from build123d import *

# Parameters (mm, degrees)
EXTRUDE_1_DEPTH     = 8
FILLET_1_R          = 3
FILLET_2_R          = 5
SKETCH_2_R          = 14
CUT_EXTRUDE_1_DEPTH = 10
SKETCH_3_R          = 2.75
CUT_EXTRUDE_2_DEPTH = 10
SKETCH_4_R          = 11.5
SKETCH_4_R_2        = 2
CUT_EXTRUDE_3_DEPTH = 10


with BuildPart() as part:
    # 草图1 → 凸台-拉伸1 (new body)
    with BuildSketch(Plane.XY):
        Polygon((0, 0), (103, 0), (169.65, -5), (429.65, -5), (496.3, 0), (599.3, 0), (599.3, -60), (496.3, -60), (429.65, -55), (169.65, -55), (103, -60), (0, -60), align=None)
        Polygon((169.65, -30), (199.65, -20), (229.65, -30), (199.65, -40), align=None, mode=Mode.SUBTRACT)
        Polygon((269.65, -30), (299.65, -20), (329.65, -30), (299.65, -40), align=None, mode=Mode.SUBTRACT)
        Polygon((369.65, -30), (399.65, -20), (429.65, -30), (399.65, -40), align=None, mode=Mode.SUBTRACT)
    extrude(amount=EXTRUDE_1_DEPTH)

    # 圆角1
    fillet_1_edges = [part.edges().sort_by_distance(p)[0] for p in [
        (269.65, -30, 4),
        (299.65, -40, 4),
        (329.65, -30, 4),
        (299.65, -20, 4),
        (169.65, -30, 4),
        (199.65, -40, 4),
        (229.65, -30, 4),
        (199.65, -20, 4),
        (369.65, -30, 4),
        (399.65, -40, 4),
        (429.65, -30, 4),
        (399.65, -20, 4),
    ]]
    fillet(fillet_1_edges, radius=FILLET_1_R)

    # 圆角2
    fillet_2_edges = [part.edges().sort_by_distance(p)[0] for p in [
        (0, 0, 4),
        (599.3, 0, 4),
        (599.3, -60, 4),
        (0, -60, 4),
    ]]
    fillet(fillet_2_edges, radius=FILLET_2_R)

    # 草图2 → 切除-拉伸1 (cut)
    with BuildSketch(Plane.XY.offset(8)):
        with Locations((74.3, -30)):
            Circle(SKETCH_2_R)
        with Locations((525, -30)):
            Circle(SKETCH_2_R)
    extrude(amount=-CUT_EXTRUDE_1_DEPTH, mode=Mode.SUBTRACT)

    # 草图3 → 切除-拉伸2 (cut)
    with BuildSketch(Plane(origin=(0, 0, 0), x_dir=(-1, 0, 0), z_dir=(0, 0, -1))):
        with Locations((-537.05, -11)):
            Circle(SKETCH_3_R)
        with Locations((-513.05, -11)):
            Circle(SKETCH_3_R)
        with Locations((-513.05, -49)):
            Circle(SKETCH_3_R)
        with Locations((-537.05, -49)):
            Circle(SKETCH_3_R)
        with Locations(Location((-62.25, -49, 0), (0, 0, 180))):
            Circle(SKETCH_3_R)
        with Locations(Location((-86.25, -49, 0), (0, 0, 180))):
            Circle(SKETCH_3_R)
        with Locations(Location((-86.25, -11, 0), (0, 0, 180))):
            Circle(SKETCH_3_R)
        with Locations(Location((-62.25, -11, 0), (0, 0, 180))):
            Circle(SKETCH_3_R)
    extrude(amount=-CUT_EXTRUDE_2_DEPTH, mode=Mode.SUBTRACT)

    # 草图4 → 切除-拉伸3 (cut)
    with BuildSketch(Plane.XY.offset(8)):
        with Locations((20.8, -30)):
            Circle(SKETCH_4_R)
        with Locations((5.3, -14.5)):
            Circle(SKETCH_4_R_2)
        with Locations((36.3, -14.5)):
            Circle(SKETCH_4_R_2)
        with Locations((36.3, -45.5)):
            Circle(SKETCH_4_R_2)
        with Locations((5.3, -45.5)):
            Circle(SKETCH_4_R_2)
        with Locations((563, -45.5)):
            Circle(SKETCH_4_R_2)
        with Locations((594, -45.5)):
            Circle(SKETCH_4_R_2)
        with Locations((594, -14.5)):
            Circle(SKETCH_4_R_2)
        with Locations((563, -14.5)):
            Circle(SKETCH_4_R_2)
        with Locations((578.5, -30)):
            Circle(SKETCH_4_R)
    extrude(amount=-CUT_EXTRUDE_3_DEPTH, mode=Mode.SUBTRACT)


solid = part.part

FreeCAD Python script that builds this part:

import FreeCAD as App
import Part
import Sketcher

V = App.Vector
Q = App.Units.Quantity


def edges_at(feature, points):
    """Names of the edges that pass closest to the given points."""
    edges = feature.Shape.Edges
    near = lambda p: min(range(len(edges)), key=lambda i: edges[i].distToShape(Part.Vertex(*p))[0])
    return sorted({f"Edge{near(p) + 1}" for p in points})


def add_polygon(sketch, points):
    """Adds a closed chain of lines whose ends are joined by coincident constraints."""
    first, n = sketch.GeometryCount, len(points)
    for a, b in zip(points, points[1:] + points[:1]):
        sketch.addGeometry(Part.LineSegment(App.Vector(*a, 0), App.Vector(*b, 0)), False)
    for i in range(n):
        sketch.addConstraint(Sketcher.Constraint("Coincident", first + i, 2, first + (i + 1) % n, 1))

doc = App.newDocument("Part")
body = doc.addObject("PartDesign::Body", "Body")

sketch1 = body.newObject("Sketcher::SketchObject", "Sketch")
sketch1.AttachmentSupport = (doc.getObject("XY_Plane"), [""])
sketch1.MapMode = "FlatFace"
add_polygon(sketch1, [(103, 0), (0, 0), (0, -60), (103, -60), (170, -55), (430, -55), (496, -60), (599, -60), (599, 0), (496, 0), (430, -5), (170, -5)])
add_polygon(sketch1, [(370, -30), (400, -20), (430, -30), (400, -40)])
add_polygon(sketch1, [(270, -30), (300, -20), (330, -30), (300, -40)])
add_polygon(sketch1, [(170, -30), (200, -20), (230, -30), (200, -40)])
sketch1.addConstraint([
    Sketcher.Constraint("Horizontal", 0),
    Sketcher.Constraint("Vertical", 1),
    Sketcher.Constraint("Horizontal", 2),
    Sketcher.Constraint("Horizontal", 4),
    Sketcher.Constraint("Horizontal", 6),
    Sketcher.Constraint("Vertical", 7),
    Sketcher.Constraint("Horizontal", 8),
    Sketcher.Constraint("Horizontal", 10),
    Sketcher.Constraint("Coincident", 0, 2, -1, 1),
    Sketcher.Constraint("PointOnObject", 7, 2, -1),
    Sketcher.Constraint("Parallel", 3, 9),
    Sketcher.Constraint("Parallel", 5, 11),
    Sketcher.Constraint("Parallel", 12, 14),
    Sketcher.Constraint("Parallel", 13, 15),
    Sketcher.Constraint("Parallel", 14, 16),
    Sketcher.Constraint("Parallel", 15, 17),
    Sketcher.Constraint("Parallel", 16, 18),
    Sketcher.Constraint("Parallel", 17, 19),
    Sketcher.Constraint("Parallel", 18, 20),
    Sketcher.Constraint("Parallel", 19, 21),
    Sketcher.Constraint("Parallel", 20, 22),
    Sketcher.Constraint("Parallel", 21, 23),
    Sketcher.Constraint("Horizontal", 2, 2, 5, 2),
    Sketcher.Constraint("Horizontal", 13, 2, 15, 2),
    Sketcher.Constraint("Horizontal", 12, 2, 16, 2),
    Sketcher.Constraint("Horizontal", 15, 2, 17, 2),
    Sketcher.Constraint("Horizontal", 14, 2, 18, 2),
    Sketcher.Constraint("Horizontal", 16, 2, 20, 2),
    Sketcher.Constraint("Horizontal", 19, 2, 21, 2),
    Sketcher.Constraint("Horizontal", 18, 2, 22, 2),
    Sketcher.Constraint("Vertical", 5, 2, 8, 2),
    Sketcher.Constraint("Vertical", 4, 2, 9, 2),
    Sketcher.Constraint("Vertical", 3, 2, 10, 2),
    Sketcher.Constraint("Vertical", 2, 2, 11, 2),
    Sketcher.Constraint("Vertical", 9, 2, 13, 2),
    Sketcher.Constraint("Vertical", 12, 2, 14, 2),
    Sketcher.Constraint("Vertical", 10, 2, 23, 2),
    Sketcher.Constraint("Equal", 2, 6),
    Sketcher.Constraint("DistanceX", 0, 2, 0, 1, Q("103 mm")),
    Sketcher.Constraint("DistanceX", 4, 1, 4, 2, Q("260 mm")),
    Sketcher.Constraint("DistanceY", 1, 2, 1, 1, Q("60 mm")),
    Sketcher.Constraint("DistanceY", 3, 2, -1, 1, Q("55 mm")),
    Sketcher.Constraint("DistanceY", 12, 2, -1, 1, Q("20 mm")),
    Sketcher.Constraint("DistanceY", 13, 2, -1, 1, Q("30 mm")),
    Sketcher.Constraint("DistanceX", 12, 2, 9, 2, Q("30 mm")),
    Sketcher.Constraint("DistanceX", 16, 2, 15, 2, Q("70 mm")),
    Sketcher.Constraint("DistanceX", -1, 1, 5, 2, Q("496.3 mm")),
])
pad1 = body.newObject("PartDesign::Pad", "Pad")
pad1.Profile = sketch1
pad1.Length = 8
doc.recompute()

fillet = body.newObject("PartDesign::Fillet", "Fillet")
fillet.Base = (pad1, edges_at(pad1, [
    (269.65, -30, 4),
    (299.65, -40, 4),
    (329.65, -30, 4),
    (299.65, -20, 4),
    (169.65, -30, 4),
    (199.65, -40, 4),
    (229.65, -30, 4),
    (199.65, -20, 4),
    (369.65, -30, 4),
    (399.65, -40, 4),
    (429.65, -30, 4),
    (399.65, -20, 4),
]))
fillet.Radius = 3
doc.recompute()

fillet2 = body.newObject("PartDesign::Fillet", "Fillet001")
fillet2.Base = (fillet, edges_at(fillet, [
    (0, 0, 4),
    (599.3, 0, 4),
    (599.3, -60, 4),
    (0, -60, 4),
]))
fillet2.Radius = 5

sketch2 = body.newObject("Sketcher::SketchObject", "Sketch001")
sketch2.AttachmentSupport = (doc.getObject("XY_Plane"), [""])
sketch2.MapMode = "FlatFace"
sketch2.AttachmentOffset = App.Placement(V(0, 0, 8), App.Rotation())
sketch2.addGeometry([
    Part.Circle(V(74, -30, 0), V(0, 0, 1), 14),
    Part.Circle(V(525, -30, 0), V(0, 0, 1), 14),
], False)
sketch2.addConstraint([
    Sketcher.Constraint("Equal", 0, 1),
    Sketcher.Constraint("Horizontal", 0, 3, 1, 3),
    Sketcher.Constraint("Diameter", 0, Q("28 mm")),
    Sketcher.Constraint("DistanceY", 0, 3, -1, 1, Q("30 mm")),
    Sketcher.Constraint("DistanceX", -1, 1, 1, 3, Q("525 mm")),
    Sketcher.Constraint("DistanceX", -1, 1, 0, 3, Q("74.3 mm")),
])
pocket1 = body.newObject("PartDesign::Pocket", "Pocket")
pocket1.Profile = sketch2
pocket1.Length = 10

sketch3 = body.newObject("Sketcher::SketchObject", "Sketch002")
sketch3.AttachmentSupport = (doc.getObject("XY_Plane"), [""])
sketch3.MapMode = "FlatFace"
sketch3.addGeometry([
    Part.Circle(V(537, -11, 0), V(0, 0, 1), 2.8),
    Part.Circle(V(513, -11, 0), V(0, 0, 1), 2.8),
    Part.Circle(V(513, -49, 0), V(0, 0, 1), 2.8),
    Part.Circle(V(537, -49, 0), V(0, 0, 1), 2.8),
    Part.Circle(V(62.2, -49, 0), V(0, 0, 1), 2.8),
    Part.Circle(V(86.2, -49, 0), V(0, 0, 1), 2.8),
    Part.Circle(V(86.2, -11, 0), V(0, 0, 1), 2.8),
    Part.Circle(V(62.2, -11, 0), V(0, 0, 1), 2.8),
], False)
sketch3.addConstraint([
    Sketcher.Constraint("Equal", 0, 1),
    Sketcher.Constraint("Equal", 1, 2),
    Sketcher.Constraint("Equal", 2, 3),
    Sketcher.Constraint("Equal", 3, 4),
    Sketcher.Constraint("Equal", 4, 5),
    Sketcher.Constraint("Equal", 5, 6),
    Sketcher.Constraint("Equal", 6, 7),
    Sketcher.Constraint("Horizontal", 0, 3, 1, 3),
    Sketcher.Constraint("Horizontal", 2, 3, 3, 3),
    Sketcher.Constraint("Horizontal", 3, 3, 4, 3),
    Sketcher.Constraint("Horizontal", 4, 3, 5, 3),
    Sketcher.Constraint("Horizontal", 1, 3, 6, 3),
    Sketcher.Constraint("Horizontal", 6, 3, 7, 3),
    Sketcher.Constraint("Vertical", 1, 3, 2, 3),
    Sketcher.Constraint("Vertical", 0, 3, 3, 3),
    Sketcher.Constraint("Vertical", 5, 3, 6, 3),
    Sketcher.Constraint("Vertical", 4, 3, 7, 3),
    Sketcher.Constraint("Diameter", 0, Q("5.5 mm")),
    Sketcher.Constraint("DistanceY", 0, 3, -1, 1, Q("11 mm")),
    Sketcher.Constraint("DistanceY", 2, 3, -1, 1, Q("49 mm")),
    Sketcher.Constraint("DistanceX", 1, 3, 0, 3, Q("24 mm")),
    Sketcher.Constraint("DistanceX", 4, 3, 5, 3, Q("24 mm")),
    Sketcher.Constraint("DistanceX", 4, 3, 2, 3, Q("450.8 mm")),
    Sketcher.Constraint("DistanceX", -1, 1, 0, 3, Q("537.05 mm")),
])
pocket2 = body.newObject("PartDesign::Pocket", "Pocket001")
pocket2.Profile = sketch3
pocket2.Length = 10
pocket2.Reversed = True

sketch4 = body.newObject("Sketcher::SketchObject", "Sketch003")
sketch4.AttachmentSupport = (doc.getObject("XY_Plane"), [""])
sketch4.MapMode = "FlatFace"
sketch4.AttachmentOffset = App.Placement(V(0, 0, 8), App.Rotation())
sketch4.addGeometry([
    Part.Circle(V(20.8, -30, 0), V(0, 0, 1), 11.5),
    Part.Circle(V(5.3, -14.5, 0), V(0, 0, 1), 2),
    Part.Circle(V(36.3, -14.5, 0), V(0, 0, 1), 2),
    Part.Circle(V(36.3, -45.5, 0), V(0, 0, 1), 2),
    Part.Circle(V(5.3, -45.5, 0), V(0, 0, 1), 2),
    Part.Circle(V(563, -45.5, 0), V(0, 0, 1), 2),
    Part.Circle(V(594, -45.5, 0), V(0, 0, 1), 2),
    Part.Circle(V(594, -14.5, 0), V(0, 0, 1), 2),
    Part.Circle(V(563, -14.5, 0), V(0, 0, 1), 2),
    Part.Circle(V(578.5, -30, 0), V(0, 0, 1), 11.5),
], False)
sketch4.addConstraint([
    Sketcher.Constraint("Equal", 1, 2),
    Sketcher.Constraint("Equal", 2, 3),
    Sketcher.Constraint("Equal", 3, 4),
    Sketcher.Constraint("Equal", 4, 5),
    Sketcher.Constraint("Equal", 5, 6),
    Sketcher.Constraint("Equal", 6, 7),
    Sketcher.Constraint("Equal", 7, 8),
    Sketcher.Constraint("Equal", 0, 9),
    Sketcher.Constraint("Horizontal", 1, 3, 2, 3),
    Sketcher.Constraint("Horizontal", 3, 3, 4, 3),
    Sketcher.Constraint("Horizontal", 4, 3, 5, 3),
    Sketcher.Constraint("Horizontal", 5, 3, 6, 3),
    Sketcher.Constraint("Horizontal", 2, 3, 7, 3),
    Sketcher.Constraint("Horizontal", 7, 3, 8, 3),
    Sketcher.Constraint("Horizontal", 0, 3, 9, 3),
    Sketcher.Constraint("Vertical", 2, 3, 3, 3),
    Sketcher.Constraint("Vertical", 1, 3, 4, 3),
    Sketcher.Constraint("Vertical", 6, 3, 7, 3),
    Sketcher.Constraint("Vertical", 5, 3, 8, 3),
    Sketcher.Constraint("Diameter", 0, Q("23 mm")),
    Sketcher.Constraint("Diameter", 1, Q("4 mm")),
    Sketcher.Constraint("DistanceY", 0, 3, -1, 1, Q("30 mm")),
    Sketcher.Constraint("DistanceX", -1, 1, 5, 3, Q("563 mm")),
    Sketcher.Constraint("DistanceX", -1, 1, 6, 3, Q("594 mm")),
    Sketcher.Constraint("DistanceX", 1, 3, 2, 3, Q("31 mm")),
    Sketcher.Constraint("DistanceY", 3, 3, 2, 3, Q("31 mm")),
    Sketcher.Constraint("DistanceX", -1, 1, 0, 3, Q("20.8 mm")),
    Sketcher.Constraint("DistanceX", -1, 1, 1, 3, Q("5.3 mm")),
    Sketcher.Constraint("DistanceY", 1, 3, -1, 1, Q("14.5 mm")),
    Sketcher.Constraint("DistanceX", -1, 1, 9, 3, Q("578.5 mm")),
])
pocket3 = body.newObject("PartDesign::Pocket", "Pocket002")
pocket3.Profile = sketch4
pocket3.Length = 10

doc.recompute()
